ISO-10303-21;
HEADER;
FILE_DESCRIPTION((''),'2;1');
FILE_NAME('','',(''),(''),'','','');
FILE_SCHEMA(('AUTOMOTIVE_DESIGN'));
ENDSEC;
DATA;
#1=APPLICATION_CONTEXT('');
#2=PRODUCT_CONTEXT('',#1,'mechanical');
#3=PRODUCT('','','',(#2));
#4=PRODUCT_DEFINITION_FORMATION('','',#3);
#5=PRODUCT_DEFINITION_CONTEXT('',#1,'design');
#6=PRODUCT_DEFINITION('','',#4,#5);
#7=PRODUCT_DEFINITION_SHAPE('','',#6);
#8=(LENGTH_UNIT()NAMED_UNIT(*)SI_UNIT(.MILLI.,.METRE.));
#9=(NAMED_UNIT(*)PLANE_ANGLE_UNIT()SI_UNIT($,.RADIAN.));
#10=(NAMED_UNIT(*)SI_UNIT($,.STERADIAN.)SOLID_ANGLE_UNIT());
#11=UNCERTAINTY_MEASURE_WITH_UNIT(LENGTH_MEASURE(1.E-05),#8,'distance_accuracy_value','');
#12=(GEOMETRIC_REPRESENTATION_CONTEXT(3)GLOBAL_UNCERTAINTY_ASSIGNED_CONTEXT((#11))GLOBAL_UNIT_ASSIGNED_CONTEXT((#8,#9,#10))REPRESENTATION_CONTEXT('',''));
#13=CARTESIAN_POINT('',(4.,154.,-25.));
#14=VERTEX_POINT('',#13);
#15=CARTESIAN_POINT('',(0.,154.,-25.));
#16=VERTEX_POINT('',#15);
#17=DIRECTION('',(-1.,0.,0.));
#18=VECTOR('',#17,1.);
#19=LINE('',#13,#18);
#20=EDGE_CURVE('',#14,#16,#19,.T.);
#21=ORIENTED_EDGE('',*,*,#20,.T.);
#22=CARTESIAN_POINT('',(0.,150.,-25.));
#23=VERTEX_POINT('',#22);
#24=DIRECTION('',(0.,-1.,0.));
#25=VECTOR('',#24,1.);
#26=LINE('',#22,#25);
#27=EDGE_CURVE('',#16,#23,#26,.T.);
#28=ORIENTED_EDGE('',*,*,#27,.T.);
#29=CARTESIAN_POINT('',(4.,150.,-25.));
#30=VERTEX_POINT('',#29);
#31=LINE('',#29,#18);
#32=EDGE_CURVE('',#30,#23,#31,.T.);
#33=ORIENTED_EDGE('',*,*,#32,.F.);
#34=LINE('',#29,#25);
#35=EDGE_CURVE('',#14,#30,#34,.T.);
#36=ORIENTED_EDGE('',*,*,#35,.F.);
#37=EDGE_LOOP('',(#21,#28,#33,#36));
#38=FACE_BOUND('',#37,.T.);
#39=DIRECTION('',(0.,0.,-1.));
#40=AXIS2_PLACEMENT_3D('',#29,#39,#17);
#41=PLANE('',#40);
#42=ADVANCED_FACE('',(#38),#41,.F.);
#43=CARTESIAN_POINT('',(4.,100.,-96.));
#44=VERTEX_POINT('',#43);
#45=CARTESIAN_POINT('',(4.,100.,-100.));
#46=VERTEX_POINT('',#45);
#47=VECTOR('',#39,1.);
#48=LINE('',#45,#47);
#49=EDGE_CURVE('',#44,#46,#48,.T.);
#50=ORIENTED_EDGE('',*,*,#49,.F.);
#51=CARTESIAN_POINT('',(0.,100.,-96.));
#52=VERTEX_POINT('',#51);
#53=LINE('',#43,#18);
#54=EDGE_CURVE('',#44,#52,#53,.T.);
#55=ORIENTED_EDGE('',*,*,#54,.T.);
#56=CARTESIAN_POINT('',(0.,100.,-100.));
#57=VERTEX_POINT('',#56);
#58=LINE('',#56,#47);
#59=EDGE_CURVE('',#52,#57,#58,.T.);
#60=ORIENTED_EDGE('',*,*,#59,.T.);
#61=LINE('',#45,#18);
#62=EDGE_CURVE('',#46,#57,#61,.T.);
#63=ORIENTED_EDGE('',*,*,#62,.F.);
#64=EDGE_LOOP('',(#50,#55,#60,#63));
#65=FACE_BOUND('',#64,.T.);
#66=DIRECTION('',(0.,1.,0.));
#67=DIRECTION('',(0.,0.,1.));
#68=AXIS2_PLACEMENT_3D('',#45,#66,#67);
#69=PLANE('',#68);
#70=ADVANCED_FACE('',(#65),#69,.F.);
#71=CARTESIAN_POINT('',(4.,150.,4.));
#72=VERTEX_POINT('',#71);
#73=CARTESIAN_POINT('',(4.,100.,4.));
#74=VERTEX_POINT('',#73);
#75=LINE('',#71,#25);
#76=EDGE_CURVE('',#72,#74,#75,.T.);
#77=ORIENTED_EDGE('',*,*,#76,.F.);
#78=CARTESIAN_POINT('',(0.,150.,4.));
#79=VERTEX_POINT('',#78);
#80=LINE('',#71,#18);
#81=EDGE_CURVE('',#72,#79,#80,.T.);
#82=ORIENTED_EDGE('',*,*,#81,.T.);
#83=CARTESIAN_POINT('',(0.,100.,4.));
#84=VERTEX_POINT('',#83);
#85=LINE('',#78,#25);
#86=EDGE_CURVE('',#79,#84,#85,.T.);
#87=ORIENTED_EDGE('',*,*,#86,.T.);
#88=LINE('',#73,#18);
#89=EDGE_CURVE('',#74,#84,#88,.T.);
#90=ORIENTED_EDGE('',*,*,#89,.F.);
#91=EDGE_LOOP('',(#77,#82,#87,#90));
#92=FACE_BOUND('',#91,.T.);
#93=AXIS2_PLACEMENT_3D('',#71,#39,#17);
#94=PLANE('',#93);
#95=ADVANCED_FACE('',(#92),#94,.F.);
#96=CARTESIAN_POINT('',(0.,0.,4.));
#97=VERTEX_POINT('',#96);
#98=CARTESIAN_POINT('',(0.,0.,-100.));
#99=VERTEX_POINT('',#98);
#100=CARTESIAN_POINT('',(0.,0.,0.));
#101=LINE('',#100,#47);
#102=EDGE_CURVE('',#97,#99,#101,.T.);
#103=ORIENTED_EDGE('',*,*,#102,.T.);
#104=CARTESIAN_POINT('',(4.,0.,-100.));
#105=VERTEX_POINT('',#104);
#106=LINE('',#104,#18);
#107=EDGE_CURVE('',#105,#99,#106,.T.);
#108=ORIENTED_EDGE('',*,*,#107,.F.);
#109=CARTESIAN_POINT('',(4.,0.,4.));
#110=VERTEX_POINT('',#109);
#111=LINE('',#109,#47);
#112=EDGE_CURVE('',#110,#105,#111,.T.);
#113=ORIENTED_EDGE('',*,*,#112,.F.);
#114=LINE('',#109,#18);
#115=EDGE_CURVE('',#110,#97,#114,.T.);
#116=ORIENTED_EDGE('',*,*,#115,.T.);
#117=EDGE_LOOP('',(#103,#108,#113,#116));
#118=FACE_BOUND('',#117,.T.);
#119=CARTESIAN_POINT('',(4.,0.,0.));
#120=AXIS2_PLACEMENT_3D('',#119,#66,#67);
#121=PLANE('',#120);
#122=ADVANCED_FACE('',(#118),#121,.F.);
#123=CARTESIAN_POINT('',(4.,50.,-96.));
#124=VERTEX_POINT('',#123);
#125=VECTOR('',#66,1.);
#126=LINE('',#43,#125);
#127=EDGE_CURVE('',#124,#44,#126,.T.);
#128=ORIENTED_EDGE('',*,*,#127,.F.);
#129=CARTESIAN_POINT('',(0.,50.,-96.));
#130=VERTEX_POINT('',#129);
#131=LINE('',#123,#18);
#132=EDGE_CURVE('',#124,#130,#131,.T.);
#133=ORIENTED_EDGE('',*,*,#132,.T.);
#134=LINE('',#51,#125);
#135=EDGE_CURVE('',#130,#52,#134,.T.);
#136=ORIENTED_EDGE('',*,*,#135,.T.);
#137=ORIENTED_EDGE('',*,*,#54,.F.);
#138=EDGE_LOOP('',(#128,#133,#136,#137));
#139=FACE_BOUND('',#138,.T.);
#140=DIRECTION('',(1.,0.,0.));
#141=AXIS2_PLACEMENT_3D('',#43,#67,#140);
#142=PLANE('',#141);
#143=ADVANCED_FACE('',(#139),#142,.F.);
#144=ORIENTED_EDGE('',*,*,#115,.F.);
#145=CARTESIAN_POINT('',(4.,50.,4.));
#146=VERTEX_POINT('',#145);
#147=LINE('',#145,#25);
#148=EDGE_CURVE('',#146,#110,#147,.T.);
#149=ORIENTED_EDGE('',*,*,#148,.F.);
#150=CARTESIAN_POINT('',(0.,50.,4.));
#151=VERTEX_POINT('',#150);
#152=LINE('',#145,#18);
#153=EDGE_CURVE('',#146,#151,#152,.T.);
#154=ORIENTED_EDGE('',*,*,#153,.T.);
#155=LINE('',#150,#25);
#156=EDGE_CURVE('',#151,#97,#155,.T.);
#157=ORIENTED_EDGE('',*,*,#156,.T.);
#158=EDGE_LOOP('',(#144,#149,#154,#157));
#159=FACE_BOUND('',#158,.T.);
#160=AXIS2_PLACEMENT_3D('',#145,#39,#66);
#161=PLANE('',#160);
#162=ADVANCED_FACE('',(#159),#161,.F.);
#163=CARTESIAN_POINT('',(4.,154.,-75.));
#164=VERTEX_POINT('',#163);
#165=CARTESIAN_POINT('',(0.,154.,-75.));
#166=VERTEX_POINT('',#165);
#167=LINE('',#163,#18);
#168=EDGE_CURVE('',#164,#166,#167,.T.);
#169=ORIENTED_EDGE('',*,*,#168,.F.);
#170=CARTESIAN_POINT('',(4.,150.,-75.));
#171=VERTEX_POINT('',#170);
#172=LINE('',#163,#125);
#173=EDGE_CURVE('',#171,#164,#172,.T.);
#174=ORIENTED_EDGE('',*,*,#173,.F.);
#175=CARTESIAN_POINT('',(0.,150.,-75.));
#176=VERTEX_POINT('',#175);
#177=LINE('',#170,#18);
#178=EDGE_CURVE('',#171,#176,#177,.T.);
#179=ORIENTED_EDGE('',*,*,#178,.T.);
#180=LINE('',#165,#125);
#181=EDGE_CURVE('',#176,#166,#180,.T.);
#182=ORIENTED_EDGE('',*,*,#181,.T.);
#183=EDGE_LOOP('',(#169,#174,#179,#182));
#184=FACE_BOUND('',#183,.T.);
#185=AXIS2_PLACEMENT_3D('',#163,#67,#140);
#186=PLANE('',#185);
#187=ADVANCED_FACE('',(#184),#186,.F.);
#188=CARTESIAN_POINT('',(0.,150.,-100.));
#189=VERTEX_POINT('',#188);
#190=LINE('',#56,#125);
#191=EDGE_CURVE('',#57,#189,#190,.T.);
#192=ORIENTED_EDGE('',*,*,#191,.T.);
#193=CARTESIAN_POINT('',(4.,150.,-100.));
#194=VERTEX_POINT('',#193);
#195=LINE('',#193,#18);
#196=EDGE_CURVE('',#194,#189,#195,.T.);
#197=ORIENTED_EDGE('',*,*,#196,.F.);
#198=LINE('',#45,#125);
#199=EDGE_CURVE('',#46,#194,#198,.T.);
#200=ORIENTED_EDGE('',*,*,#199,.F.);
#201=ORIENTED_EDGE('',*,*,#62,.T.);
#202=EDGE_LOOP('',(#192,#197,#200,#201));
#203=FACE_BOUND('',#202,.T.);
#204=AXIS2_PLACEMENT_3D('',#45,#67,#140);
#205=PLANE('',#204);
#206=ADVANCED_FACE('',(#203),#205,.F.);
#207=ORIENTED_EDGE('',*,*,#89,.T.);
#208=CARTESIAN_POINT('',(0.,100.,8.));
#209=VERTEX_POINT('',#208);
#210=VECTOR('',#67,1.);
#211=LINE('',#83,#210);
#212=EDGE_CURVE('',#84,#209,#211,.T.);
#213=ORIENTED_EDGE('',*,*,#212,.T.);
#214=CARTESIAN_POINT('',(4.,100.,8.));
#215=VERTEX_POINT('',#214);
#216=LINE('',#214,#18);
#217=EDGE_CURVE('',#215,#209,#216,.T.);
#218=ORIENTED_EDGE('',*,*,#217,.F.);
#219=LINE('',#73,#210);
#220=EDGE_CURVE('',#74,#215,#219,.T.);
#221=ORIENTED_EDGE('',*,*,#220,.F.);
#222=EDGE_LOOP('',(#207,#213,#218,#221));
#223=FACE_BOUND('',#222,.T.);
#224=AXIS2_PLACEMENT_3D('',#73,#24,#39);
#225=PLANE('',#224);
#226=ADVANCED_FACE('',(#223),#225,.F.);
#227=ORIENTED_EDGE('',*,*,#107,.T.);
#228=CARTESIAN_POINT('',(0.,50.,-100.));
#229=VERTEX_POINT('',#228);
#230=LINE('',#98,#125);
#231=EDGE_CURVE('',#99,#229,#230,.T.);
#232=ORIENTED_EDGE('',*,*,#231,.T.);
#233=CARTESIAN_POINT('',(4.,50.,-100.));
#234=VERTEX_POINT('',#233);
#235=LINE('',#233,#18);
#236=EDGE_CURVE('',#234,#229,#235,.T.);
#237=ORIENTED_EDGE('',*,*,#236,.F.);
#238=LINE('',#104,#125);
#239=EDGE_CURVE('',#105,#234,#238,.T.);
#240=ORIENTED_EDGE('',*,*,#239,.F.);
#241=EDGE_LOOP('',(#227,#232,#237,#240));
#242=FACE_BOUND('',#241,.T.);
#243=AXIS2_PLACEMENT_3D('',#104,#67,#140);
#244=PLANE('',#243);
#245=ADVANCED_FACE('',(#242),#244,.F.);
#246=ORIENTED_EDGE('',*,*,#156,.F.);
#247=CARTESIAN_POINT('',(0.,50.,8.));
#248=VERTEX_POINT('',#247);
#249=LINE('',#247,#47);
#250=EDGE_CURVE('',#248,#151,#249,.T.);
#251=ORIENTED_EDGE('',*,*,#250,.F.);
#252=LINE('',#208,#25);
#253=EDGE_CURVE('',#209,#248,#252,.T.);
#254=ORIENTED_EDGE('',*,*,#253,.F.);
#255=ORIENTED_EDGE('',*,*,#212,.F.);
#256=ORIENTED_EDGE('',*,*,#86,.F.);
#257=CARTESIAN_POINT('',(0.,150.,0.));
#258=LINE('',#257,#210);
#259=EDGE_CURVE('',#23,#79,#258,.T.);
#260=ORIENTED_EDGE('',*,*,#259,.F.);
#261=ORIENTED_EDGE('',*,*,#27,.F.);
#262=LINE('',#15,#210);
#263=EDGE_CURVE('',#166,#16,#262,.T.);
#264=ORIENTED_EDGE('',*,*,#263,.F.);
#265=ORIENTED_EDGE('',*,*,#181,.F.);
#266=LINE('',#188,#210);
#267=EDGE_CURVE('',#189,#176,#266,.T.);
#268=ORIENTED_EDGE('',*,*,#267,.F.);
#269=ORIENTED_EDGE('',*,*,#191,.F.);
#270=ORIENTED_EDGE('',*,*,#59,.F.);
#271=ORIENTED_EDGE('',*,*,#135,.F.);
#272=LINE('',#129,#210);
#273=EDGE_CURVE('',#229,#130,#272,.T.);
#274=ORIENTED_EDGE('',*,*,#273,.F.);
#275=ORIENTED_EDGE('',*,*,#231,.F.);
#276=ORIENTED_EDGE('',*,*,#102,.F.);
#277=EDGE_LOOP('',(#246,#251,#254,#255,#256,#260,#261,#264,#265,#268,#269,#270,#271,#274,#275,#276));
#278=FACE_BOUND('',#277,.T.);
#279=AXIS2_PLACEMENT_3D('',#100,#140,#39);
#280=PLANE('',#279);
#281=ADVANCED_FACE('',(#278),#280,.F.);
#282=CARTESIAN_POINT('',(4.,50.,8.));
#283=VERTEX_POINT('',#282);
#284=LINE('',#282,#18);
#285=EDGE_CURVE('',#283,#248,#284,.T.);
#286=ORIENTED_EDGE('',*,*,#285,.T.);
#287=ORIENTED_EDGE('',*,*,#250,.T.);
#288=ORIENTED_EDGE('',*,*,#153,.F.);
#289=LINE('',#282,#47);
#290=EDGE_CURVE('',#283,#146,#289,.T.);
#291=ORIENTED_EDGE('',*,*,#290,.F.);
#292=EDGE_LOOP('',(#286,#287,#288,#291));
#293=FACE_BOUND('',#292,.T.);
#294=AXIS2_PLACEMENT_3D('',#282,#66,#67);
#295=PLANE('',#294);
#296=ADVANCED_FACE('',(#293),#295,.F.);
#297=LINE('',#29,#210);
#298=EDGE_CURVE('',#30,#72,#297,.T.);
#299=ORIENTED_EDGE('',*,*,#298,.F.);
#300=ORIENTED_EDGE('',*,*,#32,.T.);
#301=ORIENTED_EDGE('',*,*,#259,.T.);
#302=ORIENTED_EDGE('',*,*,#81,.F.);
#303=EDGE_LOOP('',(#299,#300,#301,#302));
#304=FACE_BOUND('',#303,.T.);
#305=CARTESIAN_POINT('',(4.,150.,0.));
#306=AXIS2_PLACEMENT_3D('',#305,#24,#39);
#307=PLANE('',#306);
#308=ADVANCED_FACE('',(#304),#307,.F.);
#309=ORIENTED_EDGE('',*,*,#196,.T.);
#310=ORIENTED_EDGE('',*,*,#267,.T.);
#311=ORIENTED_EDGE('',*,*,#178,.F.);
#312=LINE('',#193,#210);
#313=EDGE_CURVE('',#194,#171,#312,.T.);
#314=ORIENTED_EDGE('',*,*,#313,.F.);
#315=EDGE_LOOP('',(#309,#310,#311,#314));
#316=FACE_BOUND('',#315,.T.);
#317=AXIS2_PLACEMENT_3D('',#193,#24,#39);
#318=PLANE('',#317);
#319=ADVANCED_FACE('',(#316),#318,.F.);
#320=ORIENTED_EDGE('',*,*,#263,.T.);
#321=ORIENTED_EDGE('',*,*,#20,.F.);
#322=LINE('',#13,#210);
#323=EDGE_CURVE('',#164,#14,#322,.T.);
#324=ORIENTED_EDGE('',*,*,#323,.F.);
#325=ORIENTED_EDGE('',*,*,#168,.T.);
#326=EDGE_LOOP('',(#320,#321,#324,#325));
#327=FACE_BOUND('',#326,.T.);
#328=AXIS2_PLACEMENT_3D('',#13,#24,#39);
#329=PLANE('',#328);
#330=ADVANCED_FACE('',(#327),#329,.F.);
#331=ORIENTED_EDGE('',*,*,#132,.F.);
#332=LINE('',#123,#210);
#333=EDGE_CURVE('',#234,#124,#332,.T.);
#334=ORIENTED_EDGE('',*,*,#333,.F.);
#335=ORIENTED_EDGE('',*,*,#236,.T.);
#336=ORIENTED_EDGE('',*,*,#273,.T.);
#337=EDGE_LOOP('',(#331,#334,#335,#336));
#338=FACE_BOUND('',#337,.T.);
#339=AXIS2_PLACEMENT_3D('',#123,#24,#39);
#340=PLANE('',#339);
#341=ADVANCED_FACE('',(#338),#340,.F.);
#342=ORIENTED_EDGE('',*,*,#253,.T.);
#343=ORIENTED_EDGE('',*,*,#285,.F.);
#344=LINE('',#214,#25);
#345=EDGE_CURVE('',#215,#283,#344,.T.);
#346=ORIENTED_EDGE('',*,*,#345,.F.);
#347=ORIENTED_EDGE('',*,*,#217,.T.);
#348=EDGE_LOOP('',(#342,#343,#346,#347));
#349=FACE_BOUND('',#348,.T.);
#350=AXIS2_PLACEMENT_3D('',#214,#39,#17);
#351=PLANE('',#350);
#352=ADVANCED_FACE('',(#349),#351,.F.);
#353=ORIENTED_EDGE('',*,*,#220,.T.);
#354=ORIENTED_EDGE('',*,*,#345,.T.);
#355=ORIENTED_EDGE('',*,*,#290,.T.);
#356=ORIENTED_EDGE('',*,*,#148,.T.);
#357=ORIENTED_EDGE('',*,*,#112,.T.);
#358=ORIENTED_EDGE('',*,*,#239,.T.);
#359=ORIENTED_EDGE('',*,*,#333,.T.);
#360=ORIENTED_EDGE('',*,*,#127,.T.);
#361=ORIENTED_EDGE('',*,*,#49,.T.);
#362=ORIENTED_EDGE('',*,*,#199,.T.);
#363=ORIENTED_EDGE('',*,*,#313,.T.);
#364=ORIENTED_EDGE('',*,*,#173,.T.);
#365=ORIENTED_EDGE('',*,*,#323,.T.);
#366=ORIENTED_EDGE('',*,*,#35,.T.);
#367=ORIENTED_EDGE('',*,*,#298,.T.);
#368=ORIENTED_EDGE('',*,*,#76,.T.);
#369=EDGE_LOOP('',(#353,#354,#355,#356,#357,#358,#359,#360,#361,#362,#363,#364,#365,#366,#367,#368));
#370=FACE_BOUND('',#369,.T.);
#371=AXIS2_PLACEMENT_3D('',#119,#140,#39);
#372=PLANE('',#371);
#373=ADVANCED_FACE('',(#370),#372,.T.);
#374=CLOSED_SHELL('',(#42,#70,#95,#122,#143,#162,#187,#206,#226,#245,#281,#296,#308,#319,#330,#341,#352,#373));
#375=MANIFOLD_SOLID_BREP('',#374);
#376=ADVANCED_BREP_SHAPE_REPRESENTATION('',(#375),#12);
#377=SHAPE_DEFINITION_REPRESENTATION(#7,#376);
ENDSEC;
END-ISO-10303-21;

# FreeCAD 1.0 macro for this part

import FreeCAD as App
import Part
import Sketcher


def add_polygon(sketch, points):
    """Adds a closed chain of lines whose ends are joined by coincident constraints."""
    first, n = sketch.GeometryCount, len(points)
    for a, b in zip(points, points[1:] + points[:1]):
        sketch.addGeometry(Part.LineSegment(App.Vector(*a, 0), App.Vector(*b, 0)), False)
    for i in range(n):
        sketch.addConstraint(Sketcher.Constraint("Coincident", first + i, 2, first + (i + 1) % n, 1))

doc = App.newDocument("Part")
body = doc.addObject("PartDesign::Body", "Body")

# Sketch on YZ plane
sketch1 = doc.addObject("Sketcher::SketchObject", "Sketch")
body.addObject(sketch1)
sketch1.AttachmentSupport = (doc.YZ_Plane, [""])
sketch1.MapMode = "FlatFace"
add_polygon(sketch1, [(0, -100), (50, -100), (50, -96), (100, -96), (100, -100), (150, -100), (150, -75), (154, -75), (154, -25), (150, -25), (150, 4), (100, 4), (100, 8), (50, 8), (50, 4), (0, 4)])  # lines 0-15
sketch1.addConstraint(Sketcher.Constraint("Horizontal", 0))
sketch1.addConstraint(Sketcher.Constraint("Vertical", 1))
sketch1.addConstraint(Sketcher.Constraint("Horizontal", 2))
sketch1.addConstraint(Sketcher.Constraint("Vertical", 3))
sketch1.addConstraint(Sketcher.Constraint("Horizontal", 4))
sketch1.addConstraint(Sketcher.Constraint("Vertical", 5))
sketch1.addConstraint(Sketcher.Constraint("Horizontal", 6))
sketch1.addConstraint(Sketcher.Constraint("Vertical", 7))
sketch1.addConstraint(Sketcher.Constraint("Horizontal", 8))
sketch1.addConstraint(Sketcher.Constraint("Vertical", 9))
sketch1.addConstraint(Sketcher.Constraint("Horizontal", 10))
sketch1.addConstraint(Sketcher.Constraint("Vertical", 11))
sketch1.addConstraint(Sketcher.Constraint("Horizontal", 12))
sketch1.addConstraint(Sketcher.Constraint("Vertical", 13))
sketch1.addConstraint(Sketcher.Constraint("Horizontal", 14))
sketch1.addConstraint(Sketcher.Constraint("Vertical", 15))
sketch1.addConstraint(Sketcher.Constraint("PointOnObject", 14, 2, -2))
sketch1.addConstraint(Sketcher.Constraint("Horizontal", 0, 2, 3, 2))
sketch1.addConstraint(Sketcher.Constraint("Horizontal", 10, 2, 13, 2))
sketch1.addConstraint(Sketcher.Constraint("Vertical", 5, 2, 8, 2))
sketch1.addConstraint(Sketcher.Constraint("Vertical", 3, 2, 10, 2))
sketch1.addConstraint(Sketcher.Constraint("Vertical", 1, 2, 12, 2))
sketch1.addConstraint(Sketcher.Constraint("Equal", 0, 2))
sketch1.addConstraint(Sketcher.Constraint("Equal", 2, 4))
sketch1.addConstraint(Sketcher.Constraint("Equal", 8, 1))
sketch1.addConstraint(Sketcher.Constraint("Equal", 14, 7))
sketch1.addConstraint(Sketcher.Constraint("Equal", 3, 11))
sketch1.addConstraint(Sketcher.Constraint("DistanceX", 0, 1, 0, 2, 50.0))
sketch1.addConstraint(Sketcher.Constraint("DistanceX", 6, 1, 6, 2, 4.0))
sketch1.addConstraint(Sketcher.Constraint("DistanceY", 5, 1, 5, 2, 25.0))
sketch1.addConstraint(Sketcher.Constraint("DistanceY", 9, 1, 9, 2, 29.0))
sketch1.addConstraint(Sketcher.Constraint("DistanceY", 0, 2, -1, 1, 100.0))
pad1 = doc.addObject("PartDesign::Pad", "Pad")
body.addObject(pad1)
pad1.Profile = sketch1
pad1.Length = 4

doc.recompute()
